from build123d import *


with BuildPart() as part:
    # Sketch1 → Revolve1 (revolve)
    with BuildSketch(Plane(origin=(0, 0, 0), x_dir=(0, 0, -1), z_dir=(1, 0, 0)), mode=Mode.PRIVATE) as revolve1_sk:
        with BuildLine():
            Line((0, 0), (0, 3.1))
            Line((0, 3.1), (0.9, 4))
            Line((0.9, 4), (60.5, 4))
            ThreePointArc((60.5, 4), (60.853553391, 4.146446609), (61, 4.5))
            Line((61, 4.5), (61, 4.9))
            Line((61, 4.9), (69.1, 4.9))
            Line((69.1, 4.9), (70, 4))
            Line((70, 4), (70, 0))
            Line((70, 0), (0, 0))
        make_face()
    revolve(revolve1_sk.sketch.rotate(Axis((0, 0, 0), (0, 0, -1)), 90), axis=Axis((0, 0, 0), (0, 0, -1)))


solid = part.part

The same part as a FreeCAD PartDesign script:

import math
import FreeCAD as App
import Part
import Sketcher

V = App.Vector
Q = App.Units.Quantity

doc = App.newDocument("Part")
body = doc.addObject("PartDesign::Body", "Body")

sketch1 = body.newObject("Sketcher::SketchObject", "Sketch")
sketch1.AttachmentSupport = (doc.getObject("YZ_Plane"), [""])
sketch1.MapMode = "FlatFace"
sketch1.addGeometry([
    Part.LineSegment(V(3.1, 0, 0), V(0, 0, 0)),
    Part.LineSegment(V(0, 0, 0), V(0, -70, 0)),
    Part.LineSegment(V(0, -70, 0), V(4, -70, 0)),
    Part.LineSegment(V(4, -70, 0), V(4.9, -69.1, 0)),
    Part.LineSegment(V(4.9, -69.1, 0), V(4.9, -61, 0)),
    Part.LineSegment(V(4.9, -61, 0), V(4.5, -61, 0)),
    Part.ArcOfCircle(Part.Circle(V(4.5, -60.5, 0), V(0, 0, 1), 0.5), math.radians(180), math.radians(270)),
    Part.LineSegment(V(4, -60.5, 0), V(4, -0.9, 0)),
    Part.LineSegment(V(4, -0.9, 0), V(3.1, 0, 0)),
], False)
sketch1.addConstraint([
    Sketcher.Constraint("Coincident", 0, 2, 1, 1),
    Sketcher.Constraint("Coincident", 1, 2, 2, 1),
    Sketcher.Constraint("Coincident", 2, 2, 3, 1),
    Sketcher.Constraint("Coincident", 3, 2, 4, 1),
    Sketcher.Constraint("Coincident", 4, 2, 5, 1),
    Sketcher.Constraint("Tangent", 5, 2, 6, 2),
    Sketcher.Constraint("Tangent", 6, 1, 7, 1),
    Sketcher.Constraint("Coincident", 7, 2, 8, 1),
    Sketcher.Constraint("Coincident", 8, 2, 0, 1),
    Sketcher.Constraint("Horizontal", 0),
    Sketcher.Constraint("Vertical", 1),
    Sketcher.Constraint("Horizontal", 2),
    Sketcher.Constraint("Vertical", 4),
    Sketcher.Constraint("Horizontal", 5),
    Sketcher.Constraint("Vertical", 7),
    Sketcher.Constraint("Coincident", 0, 2, -1, 1),
    Sketcher.Constraint("Perpendicular", 3, 8),
    Sketcher.Constraint("Vertical", 2, 2, 6, 1),
    Sketcher.Constraint("Equal", 3, 8),
    Sketcher.Constraint("Radius", 6, Q("0.5 mm")),
    Sketcher.Constraint("DistanceX", 2, 1, 2, 2, Q("4 mm")),
    Sketcher.Constraint("DistanceY", 1, 2, 1, 1, Q("70 mm")),
    Sketcher.Constraint("Angle", 3, Q("45 deg")),
    Sketcher.Constraint("DistanceX", 0, 2, 0, 1, Q("3.1 mm")),
    Sketcher.Constraint("DistanceY", 4, 1, 4, 2, Q("8.1 mm")),
])
revolution = body.newObject("PartDesign::Revolution", "Revolution")
revolution.Profile = sketch1
revolution.ReferenceAxis = (sketch1, ["V_Axis"])
revolution.Angle = 360

doc.recompute()
